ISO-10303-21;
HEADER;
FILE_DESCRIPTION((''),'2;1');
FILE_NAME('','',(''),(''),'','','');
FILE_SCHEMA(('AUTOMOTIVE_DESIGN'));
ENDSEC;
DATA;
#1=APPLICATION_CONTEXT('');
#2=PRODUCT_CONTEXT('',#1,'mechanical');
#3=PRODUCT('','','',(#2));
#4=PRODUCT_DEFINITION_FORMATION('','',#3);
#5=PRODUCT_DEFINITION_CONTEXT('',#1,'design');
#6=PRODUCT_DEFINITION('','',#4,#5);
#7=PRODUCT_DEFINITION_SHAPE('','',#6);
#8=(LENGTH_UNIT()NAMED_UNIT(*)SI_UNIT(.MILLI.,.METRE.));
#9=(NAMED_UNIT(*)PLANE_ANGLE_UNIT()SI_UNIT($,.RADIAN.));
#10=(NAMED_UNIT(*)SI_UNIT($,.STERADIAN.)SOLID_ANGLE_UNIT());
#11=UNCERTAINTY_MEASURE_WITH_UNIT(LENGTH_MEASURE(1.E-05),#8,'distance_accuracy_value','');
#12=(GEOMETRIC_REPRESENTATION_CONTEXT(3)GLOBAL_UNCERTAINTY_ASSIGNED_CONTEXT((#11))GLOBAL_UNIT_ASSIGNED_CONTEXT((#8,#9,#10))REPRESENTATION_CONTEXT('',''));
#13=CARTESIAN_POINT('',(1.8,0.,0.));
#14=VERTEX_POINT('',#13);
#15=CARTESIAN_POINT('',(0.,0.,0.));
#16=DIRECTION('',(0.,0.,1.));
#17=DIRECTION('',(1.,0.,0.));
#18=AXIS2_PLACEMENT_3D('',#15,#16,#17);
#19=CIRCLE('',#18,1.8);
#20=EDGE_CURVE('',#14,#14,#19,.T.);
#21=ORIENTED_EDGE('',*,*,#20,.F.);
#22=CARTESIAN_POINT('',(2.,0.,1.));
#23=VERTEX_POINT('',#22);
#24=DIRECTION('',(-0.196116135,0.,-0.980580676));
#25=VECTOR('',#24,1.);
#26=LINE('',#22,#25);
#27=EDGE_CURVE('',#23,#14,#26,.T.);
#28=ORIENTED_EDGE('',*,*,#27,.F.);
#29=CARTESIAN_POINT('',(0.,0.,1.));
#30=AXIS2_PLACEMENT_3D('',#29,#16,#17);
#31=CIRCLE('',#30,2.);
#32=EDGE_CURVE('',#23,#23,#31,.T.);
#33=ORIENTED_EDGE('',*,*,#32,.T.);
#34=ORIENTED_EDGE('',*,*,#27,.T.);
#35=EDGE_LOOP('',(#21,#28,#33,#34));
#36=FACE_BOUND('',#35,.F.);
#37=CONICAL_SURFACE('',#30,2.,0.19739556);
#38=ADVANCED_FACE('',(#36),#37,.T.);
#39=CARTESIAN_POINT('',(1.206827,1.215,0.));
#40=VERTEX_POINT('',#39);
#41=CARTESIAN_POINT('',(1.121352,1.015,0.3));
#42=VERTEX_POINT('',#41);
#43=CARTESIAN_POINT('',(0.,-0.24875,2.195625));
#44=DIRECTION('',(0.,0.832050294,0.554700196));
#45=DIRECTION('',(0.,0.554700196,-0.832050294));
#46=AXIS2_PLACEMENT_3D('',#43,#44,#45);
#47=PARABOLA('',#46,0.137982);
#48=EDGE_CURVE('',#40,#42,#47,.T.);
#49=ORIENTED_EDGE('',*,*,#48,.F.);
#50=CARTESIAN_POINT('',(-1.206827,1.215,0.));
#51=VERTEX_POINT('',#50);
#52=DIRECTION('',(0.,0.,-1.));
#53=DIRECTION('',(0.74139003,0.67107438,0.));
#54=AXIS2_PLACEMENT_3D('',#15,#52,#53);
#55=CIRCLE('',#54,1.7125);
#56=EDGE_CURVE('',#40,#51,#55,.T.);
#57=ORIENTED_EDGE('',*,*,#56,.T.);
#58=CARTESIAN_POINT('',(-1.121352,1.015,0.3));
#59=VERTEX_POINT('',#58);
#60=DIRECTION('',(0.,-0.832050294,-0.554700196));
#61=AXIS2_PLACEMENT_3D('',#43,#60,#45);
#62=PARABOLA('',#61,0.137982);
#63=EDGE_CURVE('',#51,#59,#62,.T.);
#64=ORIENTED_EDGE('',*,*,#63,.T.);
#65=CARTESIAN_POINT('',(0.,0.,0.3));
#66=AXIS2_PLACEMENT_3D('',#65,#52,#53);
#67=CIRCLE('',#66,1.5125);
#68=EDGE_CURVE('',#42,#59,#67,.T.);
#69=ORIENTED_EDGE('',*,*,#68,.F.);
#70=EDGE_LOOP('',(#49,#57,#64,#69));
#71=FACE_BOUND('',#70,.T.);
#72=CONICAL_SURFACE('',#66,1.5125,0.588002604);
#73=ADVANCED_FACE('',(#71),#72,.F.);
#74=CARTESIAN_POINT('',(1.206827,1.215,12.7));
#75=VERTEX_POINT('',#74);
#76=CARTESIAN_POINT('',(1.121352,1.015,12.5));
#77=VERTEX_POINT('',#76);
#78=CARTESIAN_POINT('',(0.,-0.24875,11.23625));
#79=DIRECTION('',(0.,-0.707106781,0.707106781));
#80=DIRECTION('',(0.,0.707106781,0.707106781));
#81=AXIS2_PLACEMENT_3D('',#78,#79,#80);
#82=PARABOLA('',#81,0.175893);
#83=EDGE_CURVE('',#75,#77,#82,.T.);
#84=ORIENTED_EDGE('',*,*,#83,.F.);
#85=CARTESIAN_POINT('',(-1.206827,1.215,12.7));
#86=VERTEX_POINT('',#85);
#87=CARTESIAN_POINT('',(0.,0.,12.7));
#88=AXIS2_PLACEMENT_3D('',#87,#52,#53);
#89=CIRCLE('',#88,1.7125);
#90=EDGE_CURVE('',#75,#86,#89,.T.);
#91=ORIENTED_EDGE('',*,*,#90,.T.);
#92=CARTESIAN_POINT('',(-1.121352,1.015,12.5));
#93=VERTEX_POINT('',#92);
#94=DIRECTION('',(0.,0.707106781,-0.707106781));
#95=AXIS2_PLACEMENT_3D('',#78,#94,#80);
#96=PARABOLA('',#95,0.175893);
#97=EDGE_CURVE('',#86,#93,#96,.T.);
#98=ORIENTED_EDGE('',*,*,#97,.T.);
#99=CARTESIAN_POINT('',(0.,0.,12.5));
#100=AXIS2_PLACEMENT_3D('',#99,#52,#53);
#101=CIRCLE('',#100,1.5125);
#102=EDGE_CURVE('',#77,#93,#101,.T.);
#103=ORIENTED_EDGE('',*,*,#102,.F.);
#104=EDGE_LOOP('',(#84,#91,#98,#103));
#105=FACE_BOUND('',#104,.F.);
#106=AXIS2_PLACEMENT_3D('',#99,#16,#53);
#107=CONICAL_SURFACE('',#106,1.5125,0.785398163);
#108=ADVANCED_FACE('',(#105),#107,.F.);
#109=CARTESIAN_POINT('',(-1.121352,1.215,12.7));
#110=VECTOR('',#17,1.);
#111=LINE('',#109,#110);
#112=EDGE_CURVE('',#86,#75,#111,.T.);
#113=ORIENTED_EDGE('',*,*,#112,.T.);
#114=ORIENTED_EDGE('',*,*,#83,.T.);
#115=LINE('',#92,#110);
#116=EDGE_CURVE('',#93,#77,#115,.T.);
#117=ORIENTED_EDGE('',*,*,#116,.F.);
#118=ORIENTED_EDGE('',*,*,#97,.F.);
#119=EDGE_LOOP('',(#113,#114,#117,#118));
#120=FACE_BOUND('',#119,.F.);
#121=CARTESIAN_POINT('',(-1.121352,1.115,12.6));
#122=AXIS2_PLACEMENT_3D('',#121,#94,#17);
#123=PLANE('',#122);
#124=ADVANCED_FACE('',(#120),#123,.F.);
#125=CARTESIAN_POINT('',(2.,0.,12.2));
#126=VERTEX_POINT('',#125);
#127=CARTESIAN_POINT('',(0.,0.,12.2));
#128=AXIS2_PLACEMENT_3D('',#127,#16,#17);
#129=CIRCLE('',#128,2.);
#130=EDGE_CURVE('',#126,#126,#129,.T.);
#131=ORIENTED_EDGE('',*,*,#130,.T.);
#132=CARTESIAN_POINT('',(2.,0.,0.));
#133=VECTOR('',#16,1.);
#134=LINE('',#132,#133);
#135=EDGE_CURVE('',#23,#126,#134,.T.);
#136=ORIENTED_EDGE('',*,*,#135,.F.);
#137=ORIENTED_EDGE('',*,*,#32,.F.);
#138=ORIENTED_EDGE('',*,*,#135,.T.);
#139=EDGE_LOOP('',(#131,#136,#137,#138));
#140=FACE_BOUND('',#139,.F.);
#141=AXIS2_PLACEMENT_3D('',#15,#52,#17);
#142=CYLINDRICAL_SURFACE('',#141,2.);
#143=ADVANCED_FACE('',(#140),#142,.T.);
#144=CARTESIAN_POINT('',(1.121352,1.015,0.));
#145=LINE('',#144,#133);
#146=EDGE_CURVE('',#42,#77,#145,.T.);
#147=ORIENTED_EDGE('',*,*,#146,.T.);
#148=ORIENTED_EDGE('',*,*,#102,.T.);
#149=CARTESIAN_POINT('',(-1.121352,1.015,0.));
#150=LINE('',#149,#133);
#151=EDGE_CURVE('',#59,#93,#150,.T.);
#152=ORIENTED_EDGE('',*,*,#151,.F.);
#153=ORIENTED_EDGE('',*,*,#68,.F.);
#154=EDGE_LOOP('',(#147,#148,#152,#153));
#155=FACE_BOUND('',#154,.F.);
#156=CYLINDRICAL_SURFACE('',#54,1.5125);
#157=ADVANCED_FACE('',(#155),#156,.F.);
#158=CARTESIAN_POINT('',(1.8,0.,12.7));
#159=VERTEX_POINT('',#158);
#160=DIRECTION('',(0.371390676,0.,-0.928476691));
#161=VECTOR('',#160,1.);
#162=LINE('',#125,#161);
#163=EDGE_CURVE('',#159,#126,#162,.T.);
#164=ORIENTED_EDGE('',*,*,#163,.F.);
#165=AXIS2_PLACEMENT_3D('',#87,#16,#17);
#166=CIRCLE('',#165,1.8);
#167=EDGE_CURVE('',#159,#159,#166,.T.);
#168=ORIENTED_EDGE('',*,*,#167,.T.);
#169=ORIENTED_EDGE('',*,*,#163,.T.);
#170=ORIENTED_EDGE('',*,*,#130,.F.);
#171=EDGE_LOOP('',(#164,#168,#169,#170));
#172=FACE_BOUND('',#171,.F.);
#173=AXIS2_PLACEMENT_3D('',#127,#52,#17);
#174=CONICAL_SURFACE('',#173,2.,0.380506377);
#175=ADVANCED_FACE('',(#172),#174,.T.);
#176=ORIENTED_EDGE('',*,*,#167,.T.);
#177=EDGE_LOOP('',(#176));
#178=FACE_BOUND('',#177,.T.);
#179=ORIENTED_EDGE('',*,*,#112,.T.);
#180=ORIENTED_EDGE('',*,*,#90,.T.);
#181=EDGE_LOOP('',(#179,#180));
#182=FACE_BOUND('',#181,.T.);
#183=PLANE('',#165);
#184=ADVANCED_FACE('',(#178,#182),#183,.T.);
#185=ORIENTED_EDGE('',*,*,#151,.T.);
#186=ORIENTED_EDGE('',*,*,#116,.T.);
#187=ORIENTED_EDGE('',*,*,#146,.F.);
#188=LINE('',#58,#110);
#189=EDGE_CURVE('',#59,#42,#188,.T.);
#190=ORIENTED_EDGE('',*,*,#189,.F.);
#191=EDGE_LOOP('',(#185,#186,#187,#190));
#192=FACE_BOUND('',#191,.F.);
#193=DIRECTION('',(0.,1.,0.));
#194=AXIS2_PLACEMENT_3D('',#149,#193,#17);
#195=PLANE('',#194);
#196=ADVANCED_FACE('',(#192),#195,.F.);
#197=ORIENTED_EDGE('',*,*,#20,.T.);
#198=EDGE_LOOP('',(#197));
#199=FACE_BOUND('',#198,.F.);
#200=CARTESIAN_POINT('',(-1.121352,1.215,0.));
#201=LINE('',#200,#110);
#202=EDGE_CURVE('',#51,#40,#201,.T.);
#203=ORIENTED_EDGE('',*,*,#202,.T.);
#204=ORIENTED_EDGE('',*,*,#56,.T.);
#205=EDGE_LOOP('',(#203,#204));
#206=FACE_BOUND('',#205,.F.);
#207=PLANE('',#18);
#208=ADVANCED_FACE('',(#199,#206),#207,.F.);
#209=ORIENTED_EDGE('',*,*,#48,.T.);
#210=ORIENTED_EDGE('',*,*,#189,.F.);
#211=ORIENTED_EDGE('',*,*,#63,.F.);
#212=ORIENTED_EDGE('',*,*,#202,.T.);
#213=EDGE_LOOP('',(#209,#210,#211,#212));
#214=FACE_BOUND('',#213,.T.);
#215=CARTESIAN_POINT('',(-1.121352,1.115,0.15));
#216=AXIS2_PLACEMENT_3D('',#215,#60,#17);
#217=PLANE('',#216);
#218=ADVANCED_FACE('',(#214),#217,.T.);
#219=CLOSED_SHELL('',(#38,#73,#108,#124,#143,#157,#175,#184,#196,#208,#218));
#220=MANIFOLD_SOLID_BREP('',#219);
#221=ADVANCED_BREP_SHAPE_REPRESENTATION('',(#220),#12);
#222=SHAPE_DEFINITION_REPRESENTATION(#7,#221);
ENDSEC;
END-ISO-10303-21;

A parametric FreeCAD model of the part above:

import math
import FreeCAD as App
import Part
import Sketcher
Q = App.Units.Quantity


def edges_at(feature, points):
    """Names of the edges that pass closest to the given points."""
    edges = feature.Shape.Edges
    near = lambda p: min(range(len(edges)), key=lambda i: edges[i].distToShape(Part.Vertex(*p))[0])
    return sorted({f"Edge{near(p) + 1}" for p in points})

doc = App.newDocument("Part")
body = doc.addObject("PartDesign::Body", "Body")

sketch1 = doc.addObject("Sketcher::SketchObject", "Sketch")
body.addObject(sketch1)
sketch1.AttachmentSupport = (doc.XY_Plane, [""])
sketch1.MapMode = "FlatFace"
sketch1.addGeometry([
    Part.Circle(App.Vector(0, 0, 0), App.Vector(0, 0, 1), 2),
    Part.ArcOfCircle(Part.Circle(App.Vector(0, 0, 0), App.Vector(0, 0, 1), 1.5125), math.radians(137.84996), math.radians(402.15004)),
    Part.LineSegment(App.Vector(-1.121352, 1.015, 0), App.Vector(1.121352, 1.015, 0)),
], False)
sketch1.addConstraint([
    Sketcher.Constraint("Coincident", 1, 1, 2, 1),
    Sketcher.Constraint("Coincident", 2, 2, 1, 2),
    Sketcher.Constraint("Horizontal", 2),
    Sketcher.Constraint("Coincident", 0, 3, -1, 1),
    Sketcher.Constraint("Coincident", 1, 3, -1, 1),
    Sketcher.Constraint("Diameter", 0, Q("4 mm")),
    Sketcher.Constraint("Radius", 1, Q("1.5125 mm")),
    Sketcher.Constraint("DistanceY", -1, 1, 1, 1, Q("1.015 mm")),
])
pad1 = doc.addObject("PartDesign::Pad", "Pad")
body.addObject(pad1)
pad1.Profile = sketch1
pad1.Length = 12.7
doc.recompute()

chamfer = doc.addObject("PartDesign::Chamfer", "Chamfer")
body.addObject(chamfer)
chamfer.Base = (pad1, edges_at(pad1, [(-2, 0, 0)]))
chamfer.ChamferType = "Two distances"
chamfer.Size = 1
chamfer.Size2 = 0.2
doc.recompute()

chamfer2 = doc.addObject("PartDesign::Chamfer", "Chamfer001")
body.addObject(chamfer2)
chamfer2.Base = (chamfer, edges_at(chamfer, [(-2, 0, 12.7)]))
chamfer2.ChamferType = "Two distances"
chamfer2.Size = 0.2
chamfer2.Size2 = 0.5
chamfer2.FlipDirection = True
doc.recompute()

chamfer3 = doc.addObject("PartDesign::Chamfer", "Chamfer002")
body.addObject(chamfer3)
chamfer3.Base = (chamfer2, edges_at(chamfer2, [(0, 1.015, 12.7), (0, -1.512, 12.7)]))
chamfer3.Size = 0.2
doc.recompute()

chamfer4 = doc.addObject("PartDesign::Chamfer", "Chamfer003")
body.addObject(chamfer4)
chamfer4.Base = (chamfer3, edges_at(chamfer3, [(0, -1.512, 0), (0, 1.015, 0)]))
chamfer4.ChamferType = "Two distances"
chamfer4.Size = 0.2
chamfer4.Size2 = 0.3
chamfer4.FlipDirection = True

doc.recompute()
